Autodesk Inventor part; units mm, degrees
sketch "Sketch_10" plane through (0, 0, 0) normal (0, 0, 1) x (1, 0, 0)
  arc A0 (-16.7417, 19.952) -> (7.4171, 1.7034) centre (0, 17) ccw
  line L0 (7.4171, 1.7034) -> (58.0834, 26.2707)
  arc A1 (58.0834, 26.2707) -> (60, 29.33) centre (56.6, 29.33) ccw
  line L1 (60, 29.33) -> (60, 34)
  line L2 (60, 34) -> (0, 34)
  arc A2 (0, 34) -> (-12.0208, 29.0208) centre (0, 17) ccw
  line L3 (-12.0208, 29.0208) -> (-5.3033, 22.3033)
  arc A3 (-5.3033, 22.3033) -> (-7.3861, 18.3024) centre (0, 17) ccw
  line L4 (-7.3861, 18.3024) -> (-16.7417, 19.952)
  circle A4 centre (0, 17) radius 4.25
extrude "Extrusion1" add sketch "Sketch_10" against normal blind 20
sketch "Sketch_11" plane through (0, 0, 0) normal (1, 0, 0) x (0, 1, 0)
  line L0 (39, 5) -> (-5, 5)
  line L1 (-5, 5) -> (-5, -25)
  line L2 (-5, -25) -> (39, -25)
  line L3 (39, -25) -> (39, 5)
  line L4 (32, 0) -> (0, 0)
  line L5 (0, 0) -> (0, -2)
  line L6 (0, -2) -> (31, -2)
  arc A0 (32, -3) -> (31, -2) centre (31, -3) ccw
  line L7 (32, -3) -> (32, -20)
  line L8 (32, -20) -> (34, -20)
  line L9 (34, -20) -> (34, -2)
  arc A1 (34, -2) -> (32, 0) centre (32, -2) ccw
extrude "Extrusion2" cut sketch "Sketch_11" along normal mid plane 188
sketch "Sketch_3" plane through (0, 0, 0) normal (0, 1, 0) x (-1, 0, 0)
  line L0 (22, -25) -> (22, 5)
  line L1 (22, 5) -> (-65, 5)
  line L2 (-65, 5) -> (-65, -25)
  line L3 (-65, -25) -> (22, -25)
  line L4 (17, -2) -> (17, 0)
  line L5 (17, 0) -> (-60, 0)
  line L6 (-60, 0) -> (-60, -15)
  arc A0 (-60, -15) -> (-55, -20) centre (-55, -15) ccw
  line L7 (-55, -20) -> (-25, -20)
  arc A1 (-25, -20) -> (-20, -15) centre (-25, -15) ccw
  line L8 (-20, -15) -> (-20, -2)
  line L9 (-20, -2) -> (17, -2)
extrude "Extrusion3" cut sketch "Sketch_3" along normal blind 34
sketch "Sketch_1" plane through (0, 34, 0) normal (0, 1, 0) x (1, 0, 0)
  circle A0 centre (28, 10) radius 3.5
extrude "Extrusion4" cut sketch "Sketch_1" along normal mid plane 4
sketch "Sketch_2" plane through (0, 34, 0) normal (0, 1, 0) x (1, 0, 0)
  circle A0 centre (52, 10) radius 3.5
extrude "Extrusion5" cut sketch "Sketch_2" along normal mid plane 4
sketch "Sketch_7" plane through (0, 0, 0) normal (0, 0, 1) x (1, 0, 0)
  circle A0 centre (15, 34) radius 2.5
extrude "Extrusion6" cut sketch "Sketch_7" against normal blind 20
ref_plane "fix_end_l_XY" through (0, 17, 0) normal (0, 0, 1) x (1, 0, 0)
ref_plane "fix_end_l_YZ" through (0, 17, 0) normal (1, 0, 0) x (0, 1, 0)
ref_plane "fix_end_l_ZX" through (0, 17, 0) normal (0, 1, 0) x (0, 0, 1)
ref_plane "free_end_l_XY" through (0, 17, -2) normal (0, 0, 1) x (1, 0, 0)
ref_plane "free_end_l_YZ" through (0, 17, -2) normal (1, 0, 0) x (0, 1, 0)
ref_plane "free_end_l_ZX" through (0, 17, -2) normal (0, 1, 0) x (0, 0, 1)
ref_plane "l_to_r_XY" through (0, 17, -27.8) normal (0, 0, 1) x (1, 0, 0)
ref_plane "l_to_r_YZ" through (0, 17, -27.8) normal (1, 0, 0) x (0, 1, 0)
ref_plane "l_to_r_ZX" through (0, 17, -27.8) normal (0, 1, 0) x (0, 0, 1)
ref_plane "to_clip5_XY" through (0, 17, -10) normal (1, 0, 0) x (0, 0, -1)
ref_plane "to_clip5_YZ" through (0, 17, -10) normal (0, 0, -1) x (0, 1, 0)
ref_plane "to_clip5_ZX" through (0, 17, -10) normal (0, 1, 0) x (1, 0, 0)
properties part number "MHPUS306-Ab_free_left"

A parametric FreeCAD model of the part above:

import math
import FreeCAD as App
import Part
import Sketcher

V = App.Vector
Q = App.Units.Quantity

doc = App.newDocument("Part")
body = doc.addObject("PartDesign::Body", "Body")

# Sketch on XY plane
sketch1 = body.newObject("Sketcher::SketchObject", "Sketch")
sketch1.AttachmentSupport = (doc.getObject("XY_Plane"), [""])
sketch1.MapMode = "FlatFace"
sketch1.addGeometry([
    Part.LineSegment(V(-7.4, 18.3, 0), V(-16.7, 20, 0)),  # 0
    Part.ArcOfCircle(Part.Circle(V(0, 17, 0), V(0, 0, 1), 17), math.radians(170), math.radians(296)),  # 1
    Part.LineSegment(V(7.4, 1.7, 0), V(58.1, 26.3, 0)),  # 2
    Part.ArcOfCircle(Part.Circle(V(56.6, 29.3, 0), V(0, 0, 1), 3.4), math.radians(-64), math.radians(0)),  # 3
    Part.LineSegment(V(60, 29.3, 0), V(60, 34, 0)),  # 4
    Part.LineSegment(V(60, 34, 0), V(0, 34, 0)),  # 5
    Part.ArcOfCircle(Part.Circle(V(0, 17, 0), V(0, 0, 1), 17), math.radians(90), math.radians(135)),  # 6
    Part.LineSegment(V(-12, 29, 0), V(-5.3, 22.3, 0)),  # 7
    Part.ArcOfCircle(Part.Circle(V(0, 17, 0), V(0, 0, 1), 7.5), math.radians(135), math.radians(170)),  # 8
    Part.Circle(V(0, 17, 0), V(0, 0, 1), 4.2),  # 9
], False)
sketch1.addConstraint([
    Sketcher.Constraint("Coincident", 0, 2, 1, 1),
    Sketcher.Constraint("Tangent", 1, 2, 2, 1),
    Sketcher.Constraint("Tangent", 2, 2, 3, 1),
    Sketcher.Constraint("Tangent", 3, 2, 4, 1),
    Sketcher.Constraint("Coincident", 4, 2, 5, 1),
    Sketcher.Constraint("Tangent", 5, 2, 6, 1),
    Sketcher.Constraint("Coincident", 6, 2, 7, 1),
    Sketcher.Constraint("Coincident", 7, 2, 8, 1),
    Sketcher.Constraint("Coincident", 8, 2, 0, 1),
    Sketcher.Constraint("Vertical", 4),
    Sketcher.Constraint("Horizontal", 5),
    Sketcher.Constraint("Coincident", 6, 3, 1, 3),
    Sketcher.Constraint("Coincident", 8, 3, 1, 3),
    Sketcher.Constraint("Coincident", 9, 3, 1, 3),
    Sketcher.Constraint("Equal", 1, 6),
    Sketcher.Constraint("PointOnObject", 1, 3, -2),
    Sketcher.Constraint("Radius", 1, Q("17 mm")),
    Sketcher.Constraint("Diameter", 9, Q("8.5 mm")),
    Sketcher.Constraint("Radius", 3, Q("3.4 mm")),
    Sketcher.Constraint("Radius", 8, Q("7.5 mm")),
    Sketcher.Constraint("DistanceX", 5, 2, 5, 1, Q("60 mm")),
    Sketcher.Constraint("Angle", 0, Q("170.0003 deg")),
    Sketcher.Constraint("Angle", 7, Q("-45 deg")),
    Sketcher.Constraint("DistanceY", -1, 1, 1, 3, Q("17 mm")),
    Sketcher.Constraint("DistanceY", 4, 1, 4, 2, Q("4.67 mm")),
    Sketcher.Constraint("DistanceY", -1, 1, 0, 2, Q("19.952 mm")),
    Sketcher.Constraint("DistanceX", 0, 2, 6, 2, Q("4.721 mm")),
])
pad1 = body.newObject("PartDesign::Pad", "Pad")
pad1.Profile = sketch1
pad1.Length = 20
pad1.Reversed = True

# Sketch on YZ plane
sketch2 = body.newObject("Sketcher::SketchObject", "Sketch001")
sketch2.AttachmentSupport = (doc.getObject("YZ_Plane"), [""])
sketch2.MapMode = "FlatFace"
sketch2.addGeometry([
    Part.LineSegment(V(39, -25, 0), V(39, 5, 0)),  # 0
    Part.LineSegment(V(39, 5, 0), V(-5, 5, 0)),  # 1
    Part.LineSegment(V(-5, 5, 0), V(-5, -25, 0)),  # 2
    Part.LineSegment(V(-5, -25, 0), V(39, -25, 0)),  # 3
    Part.LineSegment(V(0, 0, 0), V(32, 0, 0)),  # 4
    Part.ArcOfCircle(Part.Circle(V(32, -2, 0), V(0, 0, 1), 2), math.radians(0), math.radians(90)),  # 5
    Part.LineSegment(V(34, -2, 0), V(34, -20, 0)),  # 6
    Part.LineSegment(V(34, -20, 0), V(32, -20, 0)),  # 7
    Part.LineSegment(V(32, -20, 0), V(32, -3, 0)),  # 8
    Part.ArcOfCircle(Part.Circle(V(31, -3, 0), V(0, 0, 1), 1), math.radians(0), math.radians(90)),  # 9
    Part.LineSegment(V(31, -2, 0), V(0, -2, 0)),  # 10
    Part.LineSegment(V(0, -2, 0), V(0, 0, 0)),  # 11
], False)
sketch2.addConstraint([
    Sketcher.Constraint("Coincident", 0, 2, 1, 1),
    Sketcher.Constraint("Coincident", 1, 2, 2, 1),
    Sketcher.Constraint("Coincident", 2, 2, 3, 1),
    Sketcher.Constraint("Coincident", 3, 2, 0, 1),
    Sketcher.Constraint("Tangent", 4, 2, 5, 2),
    Sketcher.Constraint("Tangent", 5, 1, 6, 1),
    Sketcher.Constraint("Coincident", 6, 2, 7, 1),
    Sketcher.Constraint("Coincident", 7, 2, 8, 1),
    Sketcher.Constraint("Tangent", 8, 2, 9, 1),
    Sketcher.Constraint("Tangent", 9, 2, 10, 1),
    Sketcher.Constraint("Coincident", 10, 2, 11, 1),
    Sketcher.Constraint("Coincident", 11, 2, 4, 1),
    Sketcher.Constraint("Vertical", 0),
    Sketcher.Constraint("Horizontal", 1),
    Sketcher.Constraint("Vertical", 2),
    Sketcher.Constraint("Horizontal", 3),
    Sketcher.Constraint("Horizontal", 4),
    Sketcher.Constraint("Vertical", 6),
    Sketcher.Constraint("Horizontal", 7),
    Sketcher.Constraint("Vertical", 8),
    Sketcher.Constraint("Horizontal", 10),
    Sketcher.Constraint("Vertical", 11),
    Sketcher.Constraint("Coincident", 11, 2, -1, 1),
    Sketcher.Constraint("Horizontal", 5, 1, 9, 2),
    Sketcher.Constraint("Vertical", 4, 2, 7, 2),
    Sketcher.Constraint("Radius", 5, Q("2 mm")),
    Sketcher.Constraint("Radius", 9, Q("1 mm")),
    Sketcher.Constraint("DistanceX", 1, 2, 1, 1, Q("44 mm")),
    Sketcher.Constraint("DistanceX", 4, 1, 4, 2, Q("32 mm")),
    Sketcher.Constraint("DistanceY", 0, 1, 0, 2, Q("30 mm")),
    Sketcher.Constraint("DistanceY", 6, 2, 6, 1, Q("18 mm")),
    Sketcher.Constraint("DistanceX", -1, 1, 0, 2, Q("39 mm")),
    Sketcher.Constraint("DistanceY", -1, 1, 0, 2, Q("5 mm")),
])
pocket1 = body.newObject("PartDesign::Pocket", "Pocket")
pocket1.Profile = sketch2
pocket1.Length = 188
pocket1.Midplane = True

# Sketch on XZ plane
sketch3 = body.newObject("Sketcher::SketchObject", "Sketch002")
sketch3.AttachmentSupport = (doc.getObject("XZ_Plane"), [""])
sketch3.MapMode = "FlatFace"
sketch3.addGeometry([
    Part.LineSegment(V(65, -25, 0), V(-22, -25, 0)),  # 0
    Part.LineSegment(V(-22, -25, 0), V(-22, 5, 0)),  # 1
    Part.LineSegment(V(-22, 5, 0), V(65, 5, 0)),  # 2
    Part.LineSegment(V(65, 5, 0), V(65, -25, 0)),  # 3
    Part.LineSegment(V(-17, 0, 0), V(-17, -2, 0)),  # 4
    Part.LineSegment(V(-17, -2, 0), V(20, -2, 0)),  # 5
    Part.LineSegment(V(20, -2, 0), V(20, -15, 0)),  # 6
    Part.ArcOfCircle(Part.Circle(V(25, -15, 0), V(0, 0, 1), 5), math.radians(180), math.radians(270)),  # 7
    Part.LineSegment(V(25, -20, 0), V(55, -20, 0)),  # 8
    Part.ArcOfCircle(Part.Circle(V(55, -15, 0), V(0, 0, 1), 5), math.radians(-90), math.radians(0)),  # 9
    Part.LineSegment(V(60, -15, 0), V(60, 0, 0)),  # 10
    Part.LineSegment(V(60, 0, 0), V(-17, 0, 0)),  # 11
], False)
sketch3.addConstraint([
    Sketcher.Constraint("Coincident", 0, 2, 1, 1),
    Sketcher.Constraint("Coincident", 1, 2, 2, 1),
    Sketcher.Constraint("Coincident", 2, 2, 3, 1),
    Sketcher.Constraint("Coincident", 3, 2, 0, 1),
    Sketcher.Constraint("Coincident", 4, 2, 5, 1),
    Sketcher.Constraint("Coincident", 5, 2, 6, 1),
    Sketcher.Constraint("Tangent", 6, 2, 7, 1),
    Sketcher.Constraint("Tangent", 7, 2, 8, 1),
    Sketcher.Constraint("Tangent", 8, 2, 9, 1),
    Sketcher.Constraint("Tangent", 9, 2, 10, 1),
    Sketcher.Constraint("Coincident", 10, 2, 11, 1),
    Sketcher.Constraint("Coincident", 11, 2, 4, 1),
    Sketcher.Constraint("Horizontal", 0),
    Sketcher.Constraint("Vertical", 1),
    Sketcher.Constraint("Horizontal", 2),
    Sketcher.Constraint("Vertical", 3),
    Sketcher.Constraint("Vertical", 4),
    Sketcher.Constraint("Horizontal", 5),
    Sketcher.Constraint("Vertical", 6),
    Sketcher.Constraint("Horizontal", 8),
    Sketcher.Constraint("Vertical", 10),
    Sketcher.Constraint("Horizontal", 11),
    Sketcher.Constraint("Equal", 7, 9),
    Sketcher.Constraint("PointOnObject", 10, 2, -1),
    Sketcher.Constraint("Equal", 8, 1),
    Sketcher.Constraint("Radius", 7, Q("5 mm")),
    Sketcher.Constraint("DistanceX", 0, 2, 0, 1, Q("87 mm")),
    Sketcher.Constraint("DistanceX", 5, 1, 5, 2, Q("37 mm")),
    Sketcher.Constraint("DistanceX", 8, 1, 8, 2, Q("30 mm")),
    Sketcher.Constraint("DistanceY", 4, 2, 4, 1, Q("2 mm")),
    Sketcher.Constraint("DistanceY", 6, 2, 6, 1, Q("13 mm")),
    Sketcher.Constraint("DistanceX", -1, 1, 7, 3, Q("25 mm")),
    Sketcher.Constraint("DistanceX", 0, 2, -1, 1, Q("22 mm")),
    Sketcher.Constraint("DistanceY", 0, 2, -1, 1, Q("25 mm")),
])
pocket2 = body.newObject("PartDesign::Pocket", "Pocket001")
pocket2.Profile = sketch3
pocket2.Length = 34

# Sketch on XZ plane
sketch4 = body.newObject("Sketcher::SketchObject", "Sketch003")
sketch4.AttachmentSupport = (doc.getObject("XZ_Plane"), [""])
sketch4.MapMode = "FlatFace"
sketch4.AttachmentOffset = App.Placement(V(0, 0, -34), App.Rotation())
sketch4.addGeometry(Part.Circle(V(28, -10, 0), V(0, 0, 1), 3.5), False)
sketch4.addConstraint([
    Sketcher.Constraint("Diameter", 0, Q("7 mm")),
    Sketcher.Constraint("DistanceX", -1, 1, 0, 3, Q("28 mm")),
    Sketcher.Constraint("DistanceY", 0, 3, -1, 1, Q("10 mm")),
])
pocket3 = body.newObject("PartDesign::Pocket", "Pocket002")
pocket3.Profile = sketch4
pocket3.Length = 4
pocket3.Midplane = True

# Sketch on XZ plane
sketch5 = body.newObject("Sketcher::SketchObject", "Sketch004")
sketch5.AttachmentSupport = (doc.getObject("XZ_Plane"), [""])
sketch5.MapMode = "FlatFace"
sketch5.AttachmentOffset = App.Placement(V(0, 0, -34), App.Rotation())
sketch5.addGeometry(Part.Circle(V(52, -10, 0), V(0, 0, 1), 3.5), False)
sketch5.addConstraint([
    Sketcher.Constraint("Diameter", 0, Q("7 mm")),
    Sketcher.Constraint("DistanceX", -1, 1, 0, 3, Q("52 mm")),
    Sketcher.Constraint("DistanceY", 0, 3, -1, 1, Q("10 mm")),
])
pocket4 = body.newObject("PartDesign::Pocket", "Pocket003")
pocket4.Profile = sketch5
pocket4.Length = 4
pocket4.Midplane = True

# Sketch on XY plane
sketch6 = body.newObject("Sketcher::SketchObject", "Sketch005")
sketch6.AttachmentSupport = (doc.getObject("XY_Plane"), [""])
sketch6.MapMode = "FlatFace"
sketch6.addGeometry(Part.Circle(V(15, 34, 0), V(0, 0, 1), 2.5), False)
sketch6.addConstraint([
    Sketcher.Constraint("Diameter", 0, Q("5 mm")),
    Sketcher.Constraint("DistanceX", -1, 1, 0, 3, Q("15 mm")),
    Sketcher.Constraint("DistanceY", -1, 1, 0, 3, Q("34 mm")),
])
pocket5 = body.newObject("PartDesign::Pocket", "Pocket004")
pocket5.Profile = sketch6
pocket5.Length = 20

doc.recompute()
